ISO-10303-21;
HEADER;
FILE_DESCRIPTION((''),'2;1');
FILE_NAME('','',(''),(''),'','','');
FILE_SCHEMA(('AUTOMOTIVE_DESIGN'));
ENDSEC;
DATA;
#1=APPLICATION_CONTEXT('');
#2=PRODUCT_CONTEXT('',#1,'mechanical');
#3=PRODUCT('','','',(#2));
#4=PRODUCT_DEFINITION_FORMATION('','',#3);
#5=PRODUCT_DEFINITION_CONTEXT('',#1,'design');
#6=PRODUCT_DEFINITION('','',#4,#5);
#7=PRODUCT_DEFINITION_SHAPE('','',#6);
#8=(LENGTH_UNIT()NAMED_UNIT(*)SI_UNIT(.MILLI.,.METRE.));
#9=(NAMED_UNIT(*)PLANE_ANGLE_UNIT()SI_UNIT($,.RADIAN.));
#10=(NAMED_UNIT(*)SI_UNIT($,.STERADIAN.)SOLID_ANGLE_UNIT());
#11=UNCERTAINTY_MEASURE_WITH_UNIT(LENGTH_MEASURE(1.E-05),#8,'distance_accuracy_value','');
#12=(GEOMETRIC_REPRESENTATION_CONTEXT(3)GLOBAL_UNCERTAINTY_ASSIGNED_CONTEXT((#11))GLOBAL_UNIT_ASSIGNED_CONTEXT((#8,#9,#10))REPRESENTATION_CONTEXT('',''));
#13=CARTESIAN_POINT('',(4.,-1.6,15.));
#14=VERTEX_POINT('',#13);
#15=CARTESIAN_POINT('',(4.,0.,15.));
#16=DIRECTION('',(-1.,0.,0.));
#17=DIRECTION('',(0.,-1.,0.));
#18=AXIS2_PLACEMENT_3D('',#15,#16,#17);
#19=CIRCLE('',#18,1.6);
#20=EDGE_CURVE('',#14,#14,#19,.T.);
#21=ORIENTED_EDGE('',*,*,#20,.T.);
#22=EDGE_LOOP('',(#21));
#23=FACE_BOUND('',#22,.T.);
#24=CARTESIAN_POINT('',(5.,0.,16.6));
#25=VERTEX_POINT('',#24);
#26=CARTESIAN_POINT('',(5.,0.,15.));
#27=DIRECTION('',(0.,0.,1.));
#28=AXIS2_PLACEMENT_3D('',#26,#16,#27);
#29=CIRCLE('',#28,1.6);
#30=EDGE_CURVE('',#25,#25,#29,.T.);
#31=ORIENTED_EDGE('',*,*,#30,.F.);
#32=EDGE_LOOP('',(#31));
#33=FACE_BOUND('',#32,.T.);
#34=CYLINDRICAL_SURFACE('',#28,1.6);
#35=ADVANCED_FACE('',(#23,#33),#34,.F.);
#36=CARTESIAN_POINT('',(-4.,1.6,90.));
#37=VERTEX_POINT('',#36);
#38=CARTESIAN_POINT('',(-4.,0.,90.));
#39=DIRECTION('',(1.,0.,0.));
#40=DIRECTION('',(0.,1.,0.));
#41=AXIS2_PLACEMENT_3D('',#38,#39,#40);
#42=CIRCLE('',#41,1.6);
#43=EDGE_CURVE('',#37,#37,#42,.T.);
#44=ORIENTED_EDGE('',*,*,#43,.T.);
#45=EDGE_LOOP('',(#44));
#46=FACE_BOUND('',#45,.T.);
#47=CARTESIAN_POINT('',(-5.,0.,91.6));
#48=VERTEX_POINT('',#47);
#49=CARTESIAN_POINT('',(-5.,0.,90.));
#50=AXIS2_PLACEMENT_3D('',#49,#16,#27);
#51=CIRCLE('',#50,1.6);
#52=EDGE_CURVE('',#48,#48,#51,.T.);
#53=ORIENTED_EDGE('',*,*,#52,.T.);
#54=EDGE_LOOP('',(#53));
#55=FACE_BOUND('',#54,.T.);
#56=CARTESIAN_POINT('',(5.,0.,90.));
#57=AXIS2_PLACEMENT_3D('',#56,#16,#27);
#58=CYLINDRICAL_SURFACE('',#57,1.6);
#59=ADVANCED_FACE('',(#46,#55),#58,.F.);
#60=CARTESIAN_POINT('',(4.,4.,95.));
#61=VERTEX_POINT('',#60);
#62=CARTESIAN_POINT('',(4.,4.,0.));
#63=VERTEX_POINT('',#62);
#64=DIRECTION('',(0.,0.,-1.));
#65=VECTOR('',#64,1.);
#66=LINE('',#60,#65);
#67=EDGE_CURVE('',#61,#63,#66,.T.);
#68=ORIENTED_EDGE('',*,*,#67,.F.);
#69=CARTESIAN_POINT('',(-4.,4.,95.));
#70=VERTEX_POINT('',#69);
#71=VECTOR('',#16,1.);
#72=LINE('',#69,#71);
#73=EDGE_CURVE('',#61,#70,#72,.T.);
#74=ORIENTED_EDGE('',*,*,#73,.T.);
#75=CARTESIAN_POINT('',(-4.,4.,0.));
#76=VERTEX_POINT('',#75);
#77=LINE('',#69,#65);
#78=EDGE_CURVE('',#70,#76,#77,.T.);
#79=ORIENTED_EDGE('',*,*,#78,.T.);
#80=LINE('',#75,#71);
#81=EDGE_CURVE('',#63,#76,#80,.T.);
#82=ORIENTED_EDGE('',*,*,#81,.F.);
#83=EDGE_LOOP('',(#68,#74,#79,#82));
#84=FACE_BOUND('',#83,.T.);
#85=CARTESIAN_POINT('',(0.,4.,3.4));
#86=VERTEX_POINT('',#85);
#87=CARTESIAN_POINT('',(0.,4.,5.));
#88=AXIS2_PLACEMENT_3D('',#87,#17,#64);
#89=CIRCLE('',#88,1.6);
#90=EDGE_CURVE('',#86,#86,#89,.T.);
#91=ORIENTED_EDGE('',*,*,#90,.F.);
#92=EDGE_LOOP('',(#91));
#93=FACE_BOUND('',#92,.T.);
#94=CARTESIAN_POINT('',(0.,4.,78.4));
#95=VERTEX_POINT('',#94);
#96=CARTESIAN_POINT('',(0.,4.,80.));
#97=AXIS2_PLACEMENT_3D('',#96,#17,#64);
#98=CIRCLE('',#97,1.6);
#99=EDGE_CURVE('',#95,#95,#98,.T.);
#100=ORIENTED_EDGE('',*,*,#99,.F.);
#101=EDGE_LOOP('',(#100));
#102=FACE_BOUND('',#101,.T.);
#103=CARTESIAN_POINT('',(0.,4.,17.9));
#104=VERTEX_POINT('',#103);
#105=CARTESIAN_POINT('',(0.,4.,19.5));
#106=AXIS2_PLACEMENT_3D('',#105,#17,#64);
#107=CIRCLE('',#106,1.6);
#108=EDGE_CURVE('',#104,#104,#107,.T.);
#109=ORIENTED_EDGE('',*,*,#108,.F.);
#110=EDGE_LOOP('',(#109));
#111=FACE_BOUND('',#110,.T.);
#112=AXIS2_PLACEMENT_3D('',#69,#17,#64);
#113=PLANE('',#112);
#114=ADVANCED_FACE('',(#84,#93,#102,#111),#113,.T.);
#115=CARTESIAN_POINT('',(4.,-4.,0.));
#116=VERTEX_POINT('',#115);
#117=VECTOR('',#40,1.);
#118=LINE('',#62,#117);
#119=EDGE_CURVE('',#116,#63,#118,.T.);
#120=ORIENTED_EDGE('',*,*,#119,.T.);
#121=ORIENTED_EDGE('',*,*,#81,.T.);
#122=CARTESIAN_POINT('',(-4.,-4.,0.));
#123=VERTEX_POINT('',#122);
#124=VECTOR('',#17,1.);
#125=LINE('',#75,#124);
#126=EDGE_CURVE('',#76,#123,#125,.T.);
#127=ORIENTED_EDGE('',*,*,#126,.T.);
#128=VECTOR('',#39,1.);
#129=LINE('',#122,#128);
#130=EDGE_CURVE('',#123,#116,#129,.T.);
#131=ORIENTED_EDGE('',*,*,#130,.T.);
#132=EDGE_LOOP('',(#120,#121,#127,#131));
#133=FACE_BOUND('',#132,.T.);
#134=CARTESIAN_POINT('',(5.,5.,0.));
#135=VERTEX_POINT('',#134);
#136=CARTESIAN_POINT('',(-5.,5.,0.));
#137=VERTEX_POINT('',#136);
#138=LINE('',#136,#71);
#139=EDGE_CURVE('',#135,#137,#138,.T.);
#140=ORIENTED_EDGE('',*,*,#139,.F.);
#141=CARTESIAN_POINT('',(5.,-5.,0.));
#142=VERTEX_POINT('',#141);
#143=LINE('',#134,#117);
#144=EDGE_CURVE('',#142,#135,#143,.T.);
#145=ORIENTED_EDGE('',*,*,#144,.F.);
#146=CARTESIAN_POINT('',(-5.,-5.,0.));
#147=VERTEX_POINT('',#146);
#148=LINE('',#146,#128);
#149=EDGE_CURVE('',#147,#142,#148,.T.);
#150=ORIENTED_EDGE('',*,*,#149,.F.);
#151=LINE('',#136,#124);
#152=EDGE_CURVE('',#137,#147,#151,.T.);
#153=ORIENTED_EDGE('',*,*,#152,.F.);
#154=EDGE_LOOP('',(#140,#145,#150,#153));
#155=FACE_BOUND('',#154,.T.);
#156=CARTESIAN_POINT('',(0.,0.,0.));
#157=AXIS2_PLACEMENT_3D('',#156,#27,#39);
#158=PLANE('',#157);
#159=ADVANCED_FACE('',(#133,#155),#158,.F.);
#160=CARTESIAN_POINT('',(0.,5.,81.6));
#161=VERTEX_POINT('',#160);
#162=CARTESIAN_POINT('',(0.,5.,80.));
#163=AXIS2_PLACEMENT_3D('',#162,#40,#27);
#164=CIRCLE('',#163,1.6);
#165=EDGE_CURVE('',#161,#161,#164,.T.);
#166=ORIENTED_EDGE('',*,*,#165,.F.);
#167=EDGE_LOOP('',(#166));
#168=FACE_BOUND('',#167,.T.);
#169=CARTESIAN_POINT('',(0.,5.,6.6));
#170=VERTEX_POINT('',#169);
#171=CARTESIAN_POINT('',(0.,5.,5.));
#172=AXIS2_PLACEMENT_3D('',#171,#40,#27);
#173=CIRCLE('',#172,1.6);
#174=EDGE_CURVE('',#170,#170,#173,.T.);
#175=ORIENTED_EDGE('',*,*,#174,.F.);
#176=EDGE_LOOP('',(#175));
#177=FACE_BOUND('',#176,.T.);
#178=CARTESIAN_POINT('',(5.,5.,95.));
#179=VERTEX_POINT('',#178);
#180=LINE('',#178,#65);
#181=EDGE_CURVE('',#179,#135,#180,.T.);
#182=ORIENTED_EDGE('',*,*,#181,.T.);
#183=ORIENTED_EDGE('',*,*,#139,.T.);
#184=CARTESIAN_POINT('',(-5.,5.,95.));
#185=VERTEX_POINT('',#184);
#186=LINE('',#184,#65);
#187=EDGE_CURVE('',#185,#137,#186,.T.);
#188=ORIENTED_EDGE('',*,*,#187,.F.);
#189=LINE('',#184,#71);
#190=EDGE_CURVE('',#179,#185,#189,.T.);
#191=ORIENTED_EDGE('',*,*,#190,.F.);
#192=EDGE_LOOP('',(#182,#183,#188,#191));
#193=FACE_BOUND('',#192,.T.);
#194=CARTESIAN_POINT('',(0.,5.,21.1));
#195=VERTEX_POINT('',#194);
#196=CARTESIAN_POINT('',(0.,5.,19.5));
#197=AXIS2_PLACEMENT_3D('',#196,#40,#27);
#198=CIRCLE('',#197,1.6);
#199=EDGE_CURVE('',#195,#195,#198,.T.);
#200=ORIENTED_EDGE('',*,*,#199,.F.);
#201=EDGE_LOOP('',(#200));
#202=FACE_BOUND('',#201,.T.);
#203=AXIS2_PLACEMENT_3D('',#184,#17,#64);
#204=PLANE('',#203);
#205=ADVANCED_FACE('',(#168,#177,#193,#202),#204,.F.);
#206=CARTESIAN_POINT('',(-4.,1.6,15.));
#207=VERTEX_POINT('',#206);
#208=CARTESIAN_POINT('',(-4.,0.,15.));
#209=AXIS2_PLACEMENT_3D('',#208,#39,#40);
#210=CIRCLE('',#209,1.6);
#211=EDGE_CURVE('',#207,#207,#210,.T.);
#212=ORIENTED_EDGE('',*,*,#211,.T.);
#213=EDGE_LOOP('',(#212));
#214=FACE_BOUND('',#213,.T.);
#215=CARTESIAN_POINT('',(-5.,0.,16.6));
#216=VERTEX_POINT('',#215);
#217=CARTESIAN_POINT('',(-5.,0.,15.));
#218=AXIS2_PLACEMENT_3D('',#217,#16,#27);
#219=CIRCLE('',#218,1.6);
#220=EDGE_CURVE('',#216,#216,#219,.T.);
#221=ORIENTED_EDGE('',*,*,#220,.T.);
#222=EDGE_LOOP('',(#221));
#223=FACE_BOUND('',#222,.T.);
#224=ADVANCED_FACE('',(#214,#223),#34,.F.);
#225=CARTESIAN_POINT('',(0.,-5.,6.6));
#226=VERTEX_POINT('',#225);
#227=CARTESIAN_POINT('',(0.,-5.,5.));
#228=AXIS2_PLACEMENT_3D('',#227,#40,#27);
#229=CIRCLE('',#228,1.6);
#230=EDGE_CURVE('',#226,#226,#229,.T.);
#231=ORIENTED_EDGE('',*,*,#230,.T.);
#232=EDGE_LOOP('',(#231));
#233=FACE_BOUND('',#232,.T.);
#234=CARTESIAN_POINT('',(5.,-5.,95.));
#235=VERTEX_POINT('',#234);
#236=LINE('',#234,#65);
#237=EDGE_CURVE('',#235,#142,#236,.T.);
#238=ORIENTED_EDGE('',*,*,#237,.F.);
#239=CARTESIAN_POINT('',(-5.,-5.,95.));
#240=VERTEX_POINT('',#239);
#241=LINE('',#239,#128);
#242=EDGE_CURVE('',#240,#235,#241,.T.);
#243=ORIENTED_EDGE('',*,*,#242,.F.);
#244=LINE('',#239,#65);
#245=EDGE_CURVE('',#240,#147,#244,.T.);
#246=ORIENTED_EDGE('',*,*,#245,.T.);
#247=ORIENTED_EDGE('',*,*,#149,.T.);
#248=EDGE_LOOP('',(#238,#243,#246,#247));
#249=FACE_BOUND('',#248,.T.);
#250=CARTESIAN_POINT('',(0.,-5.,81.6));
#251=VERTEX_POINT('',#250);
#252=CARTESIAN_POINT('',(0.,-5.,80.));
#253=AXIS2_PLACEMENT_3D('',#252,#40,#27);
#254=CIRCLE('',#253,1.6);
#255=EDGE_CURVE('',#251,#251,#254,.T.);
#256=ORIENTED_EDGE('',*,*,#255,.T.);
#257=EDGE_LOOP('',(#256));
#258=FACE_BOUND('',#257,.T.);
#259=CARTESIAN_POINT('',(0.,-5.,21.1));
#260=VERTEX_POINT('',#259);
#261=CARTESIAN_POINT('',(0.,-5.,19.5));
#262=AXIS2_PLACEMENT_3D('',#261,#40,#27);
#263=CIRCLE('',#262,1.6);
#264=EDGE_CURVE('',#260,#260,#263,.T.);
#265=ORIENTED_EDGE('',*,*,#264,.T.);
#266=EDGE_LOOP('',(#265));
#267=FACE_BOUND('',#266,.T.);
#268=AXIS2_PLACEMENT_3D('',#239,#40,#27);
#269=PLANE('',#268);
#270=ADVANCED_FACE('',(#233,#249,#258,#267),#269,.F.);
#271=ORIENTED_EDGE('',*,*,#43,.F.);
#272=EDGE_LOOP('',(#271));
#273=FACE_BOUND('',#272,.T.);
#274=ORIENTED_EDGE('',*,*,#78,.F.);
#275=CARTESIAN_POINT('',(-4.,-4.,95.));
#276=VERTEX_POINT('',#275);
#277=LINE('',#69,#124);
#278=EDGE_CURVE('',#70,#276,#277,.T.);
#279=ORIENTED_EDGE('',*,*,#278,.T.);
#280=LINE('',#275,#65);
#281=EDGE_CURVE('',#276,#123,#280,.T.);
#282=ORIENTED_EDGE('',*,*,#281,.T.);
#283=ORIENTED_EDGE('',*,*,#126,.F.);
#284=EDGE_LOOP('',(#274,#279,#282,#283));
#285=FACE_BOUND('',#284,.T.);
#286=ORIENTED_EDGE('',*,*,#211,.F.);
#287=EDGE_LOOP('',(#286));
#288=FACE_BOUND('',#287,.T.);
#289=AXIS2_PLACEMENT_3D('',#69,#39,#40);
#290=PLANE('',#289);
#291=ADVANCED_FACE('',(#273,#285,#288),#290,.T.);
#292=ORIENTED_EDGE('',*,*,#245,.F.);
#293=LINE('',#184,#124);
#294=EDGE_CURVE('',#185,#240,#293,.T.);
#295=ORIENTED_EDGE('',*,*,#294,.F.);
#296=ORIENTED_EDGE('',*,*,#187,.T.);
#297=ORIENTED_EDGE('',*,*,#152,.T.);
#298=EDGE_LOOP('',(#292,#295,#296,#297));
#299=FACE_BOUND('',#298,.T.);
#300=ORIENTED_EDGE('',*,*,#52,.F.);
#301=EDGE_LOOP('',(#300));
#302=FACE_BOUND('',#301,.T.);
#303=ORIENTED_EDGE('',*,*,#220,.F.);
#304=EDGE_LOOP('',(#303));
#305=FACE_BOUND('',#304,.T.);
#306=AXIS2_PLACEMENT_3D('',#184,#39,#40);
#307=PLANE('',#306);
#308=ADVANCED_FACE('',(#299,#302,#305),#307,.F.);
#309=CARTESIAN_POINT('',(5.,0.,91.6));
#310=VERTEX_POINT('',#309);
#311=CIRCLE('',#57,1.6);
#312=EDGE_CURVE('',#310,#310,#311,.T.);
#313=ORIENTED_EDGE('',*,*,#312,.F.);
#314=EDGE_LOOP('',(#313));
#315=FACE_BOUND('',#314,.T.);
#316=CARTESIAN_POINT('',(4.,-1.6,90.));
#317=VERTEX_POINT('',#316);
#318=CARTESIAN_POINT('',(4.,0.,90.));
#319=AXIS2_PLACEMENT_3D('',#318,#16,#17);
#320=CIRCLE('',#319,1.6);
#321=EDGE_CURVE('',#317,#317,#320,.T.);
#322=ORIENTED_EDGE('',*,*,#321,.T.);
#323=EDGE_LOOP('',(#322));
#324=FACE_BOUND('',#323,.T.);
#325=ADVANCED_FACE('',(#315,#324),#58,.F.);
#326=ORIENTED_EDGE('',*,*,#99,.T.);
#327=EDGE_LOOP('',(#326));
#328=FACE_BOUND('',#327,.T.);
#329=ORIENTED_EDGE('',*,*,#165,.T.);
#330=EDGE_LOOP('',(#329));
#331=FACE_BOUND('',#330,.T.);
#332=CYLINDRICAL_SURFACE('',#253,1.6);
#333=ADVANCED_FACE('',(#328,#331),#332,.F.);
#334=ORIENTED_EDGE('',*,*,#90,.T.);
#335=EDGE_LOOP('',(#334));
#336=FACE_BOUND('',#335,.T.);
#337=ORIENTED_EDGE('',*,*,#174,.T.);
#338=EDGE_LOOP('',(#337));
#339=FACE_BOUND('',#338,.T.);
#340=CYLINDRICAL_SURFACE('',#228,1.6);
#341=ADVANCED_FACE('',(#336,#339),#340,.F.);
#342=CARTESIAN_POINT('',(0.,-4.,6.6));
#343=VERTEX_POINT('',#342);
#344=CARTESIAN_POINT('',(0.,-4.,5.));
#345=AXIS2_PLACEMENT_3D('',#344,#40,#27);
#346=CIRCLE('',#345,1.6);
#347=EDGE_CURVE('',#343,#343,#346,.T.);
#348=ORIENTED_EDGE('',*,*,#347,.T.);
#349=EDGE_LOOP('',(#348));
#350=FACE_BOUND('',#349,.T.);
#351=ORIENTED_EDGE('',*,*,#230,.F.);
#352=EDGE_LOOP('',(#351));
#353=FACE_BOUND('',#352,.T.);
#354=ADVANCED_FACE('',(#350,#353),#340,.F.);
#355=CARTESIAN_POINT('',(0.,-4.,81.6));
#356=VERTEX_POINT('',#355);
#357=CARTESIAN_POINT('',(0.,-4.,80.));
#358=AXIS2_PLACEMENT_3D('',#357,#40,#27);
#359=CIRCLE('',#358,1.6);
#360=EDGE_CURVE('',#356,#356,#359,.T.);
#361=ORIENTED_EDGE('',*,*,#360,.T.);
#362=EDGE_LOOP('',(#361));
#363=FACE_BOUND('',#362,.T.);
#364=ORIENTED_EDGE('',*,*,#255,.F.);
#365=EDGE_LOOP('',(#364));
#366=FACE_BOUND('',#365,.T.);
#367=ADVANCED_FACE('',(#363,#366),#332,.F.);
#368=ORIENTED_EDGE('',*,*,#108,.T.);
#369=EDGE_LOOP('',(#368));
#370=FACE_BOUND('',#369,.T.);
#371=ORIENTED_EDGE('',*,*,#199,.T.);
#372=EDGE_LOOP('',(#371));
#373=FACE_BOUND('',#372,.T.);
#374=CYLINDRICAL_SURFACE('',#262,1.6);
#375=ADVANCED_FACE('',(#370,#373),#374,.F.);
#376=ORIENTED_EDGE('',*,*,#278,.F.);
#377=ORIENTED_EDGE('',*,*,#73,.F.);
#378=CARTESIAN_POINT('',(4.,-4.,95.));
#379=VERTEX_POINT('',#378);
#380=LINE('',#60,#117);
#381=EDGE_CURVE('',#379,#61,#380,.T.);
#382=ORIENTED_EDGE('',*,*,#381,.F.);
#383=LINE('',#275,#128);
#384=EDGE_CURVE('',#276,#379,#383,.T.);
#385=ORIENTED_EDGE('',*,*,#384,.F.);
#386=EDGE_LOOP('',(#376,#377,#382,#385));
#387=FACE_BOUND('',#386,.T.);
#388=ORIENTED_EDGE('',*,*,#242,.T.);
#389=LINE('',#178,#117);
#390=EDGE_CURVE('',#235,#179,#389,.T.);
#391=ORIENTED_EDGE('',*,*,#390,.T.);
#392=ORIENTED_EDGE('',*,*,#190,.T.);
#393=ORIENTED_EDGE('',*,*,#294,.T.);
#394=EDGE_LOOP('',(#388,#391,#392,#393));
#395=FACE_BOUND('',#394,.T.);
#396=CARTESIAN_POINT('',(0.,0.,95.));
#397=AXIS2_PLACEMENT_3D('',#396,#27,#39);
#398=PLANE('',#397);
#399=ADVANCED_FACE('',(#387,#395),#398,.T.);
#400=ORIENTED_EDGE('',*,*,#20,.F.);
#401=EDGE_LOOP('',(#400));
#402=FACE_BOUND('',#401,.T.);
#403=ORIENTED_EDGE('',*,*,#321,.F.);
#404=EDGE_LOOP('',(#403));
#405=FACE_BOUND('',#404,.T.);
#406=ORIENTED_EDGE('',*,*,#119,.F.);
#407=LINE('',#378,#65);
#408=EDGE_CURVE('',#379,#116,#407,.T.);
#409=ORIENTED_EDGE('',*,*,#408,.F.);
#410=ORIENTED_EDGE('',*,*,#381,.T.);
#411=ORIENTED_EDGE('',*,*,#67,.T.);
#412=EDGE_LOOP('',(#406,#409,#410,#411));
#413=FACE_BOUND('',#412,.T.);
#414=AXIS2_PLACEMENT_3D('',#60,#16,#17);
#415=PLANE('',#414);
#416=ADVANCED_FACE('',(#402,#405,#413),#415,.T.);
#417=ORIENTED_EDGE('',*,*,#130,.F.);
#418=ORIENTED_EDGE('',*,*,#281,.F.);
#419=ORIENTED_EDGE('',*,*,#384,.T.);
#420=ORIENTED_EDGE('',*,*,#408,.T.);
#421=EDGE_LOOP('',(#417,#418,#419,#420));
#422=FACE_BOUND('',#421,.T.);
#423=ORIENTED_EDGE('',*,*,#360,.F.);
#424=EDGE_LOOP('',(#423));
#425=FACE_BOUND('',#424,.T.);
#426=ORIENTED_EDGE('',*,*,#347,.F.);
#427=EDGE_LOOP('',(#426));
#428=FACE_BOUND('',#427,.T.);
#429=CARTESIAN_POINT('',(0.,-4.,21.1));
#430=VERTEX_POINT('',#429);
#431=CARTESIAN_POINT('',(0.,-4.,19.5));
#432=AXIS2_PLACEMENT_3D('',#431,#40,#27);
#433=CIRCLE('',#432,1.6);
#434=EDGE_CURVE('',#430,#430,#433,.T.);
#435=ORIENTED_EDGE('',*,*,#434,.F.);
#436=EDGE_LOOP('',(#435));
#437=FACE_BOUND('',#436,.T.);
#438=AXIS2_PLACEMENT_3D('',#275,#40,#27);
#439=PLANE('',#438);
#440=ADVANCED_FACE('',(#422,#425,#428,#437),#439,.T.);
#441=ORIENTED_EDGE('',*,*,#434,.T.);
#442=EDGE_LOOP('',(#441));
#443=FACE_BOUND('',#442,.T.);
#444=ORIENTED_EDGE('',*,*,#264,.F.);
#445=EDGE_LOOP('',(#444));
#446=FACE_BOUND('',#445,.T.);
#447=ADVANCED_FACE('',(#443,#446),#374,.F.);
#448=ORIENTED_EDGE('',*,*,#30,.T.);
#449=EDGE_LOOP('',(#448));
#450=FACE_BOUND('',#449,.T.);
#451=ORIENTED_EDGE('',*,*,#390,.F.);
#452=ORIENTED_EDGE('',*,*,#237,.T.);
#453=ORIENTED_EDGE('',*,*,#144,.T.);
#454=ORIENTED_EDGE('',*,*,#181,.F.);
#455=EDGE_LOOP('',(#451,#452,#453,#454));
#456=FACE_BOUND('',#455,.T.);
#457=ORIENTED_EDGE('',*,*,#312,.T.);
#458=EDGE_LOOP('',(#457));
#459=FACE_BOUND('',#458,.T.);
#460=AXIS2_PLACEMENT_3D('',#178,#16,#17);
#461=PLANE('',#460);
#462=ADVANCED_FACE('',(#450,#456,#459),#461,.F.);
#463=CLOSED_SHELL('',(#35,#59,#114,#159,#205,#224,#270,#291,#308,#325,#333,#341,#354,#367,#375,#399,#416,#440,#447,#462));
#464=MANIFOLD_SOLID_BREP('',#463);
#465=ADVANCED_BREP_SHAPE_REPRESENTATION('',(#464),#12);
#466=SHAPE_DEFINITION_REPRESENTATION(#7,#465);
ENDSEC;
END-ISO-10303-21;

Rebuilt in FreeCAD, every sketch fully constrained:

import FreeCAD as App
import Part
import Sketcher
from FreeCAD import Vector
Q = App.Units.Quantity


def add_polygon(sketch, points):
    """Adds a closed chain of lines whose ends are joined by coincident constraints."""
    first, n = sketch.GeometryCount, len(points)
    for a, b in zip(points, points[1:] + points[:1]):
        sketch.addGeometry(Part.LineSegment(App.Vector(*a, 0), App.Vector(*b, 0)), False)
    for i in range(n):
        sketch.addConstraint(Sketcher.Constraint("Coincident", first + i, 2, first + (i + 1) % n, 1))

doc = App.newDocument("Part")
body = doc.addObject("PartDesign::Body", "Body")

# Sketch on XY plane
sketch1 = body.newObject("Sketcher::SketchObject", "Sketch")
sketch1.AttachmentSupport = (doc.getObject("XY_Plane"), [""])
sketch1.MapMode = "FlatFace"
add_polygon(sketch1, [(-5, 5), (-5, -5), (5, -5), (5, 5)])  # lines 0-3
add_polygon(sketch1, [(4, -4), (-4, -4), (-4, 4), (4, 4)])  # lines 4-7
sketch1.addConstraint([
    Sketcher.Constraint("Vertical", 0),
    Sketcher.Constraint("Horizontal", 1),
    Sketcher.Constraint("Vertical", 2),
    Sketcher.Constraint("Horizontal", 3),
    Sketcher.Constraint("Horizontal", 4),
    Sketcher.Constraint("Vertical", 5),
    Sketcher.Constraint("Horizontal", 6),
    Sketcher.Constraint("Vertical", 7),
    Sketcher.Constraint("Symmetric", 0, 2, 2, 2, -1, 1),
    Sketcher.Constraint("Symmetric", 4, 2, 6, 2, -1, 1),
    Sketcher.Constraint("Equal", 3, 0),
    Sketcher.Constraint("Equal", 6, 5),
    Sketcher.Constraint("DistanceX", 1, 1, 1, 2, Q("10 mm")),
    Sketcher.Constraint("DistanceX", 4, 2, 4, 1, Q("8 mm")),
])
pad1 = body.newObject("PartDesign::Pad", "Pad")
pad1.Profile = sketch1
pad1.Length = 95

# Sketch on XZ plane
sketch2 = body.newObject("Sketcher::SketchObject", "Sketch001")
sketch2.AttachmentSupport = (doc.getObject("XZ_Plane"), [""])
sketch2.MapMode = "FlatFace"
sketch2.AttachmentOffset = App.Placement(Vector(0, 0, -5), App.Rotation())
sketch2.addGeometry([
    Part.Circle(Vector(0, 5, 0), Vector(0, 0, 1), 1.6),
    Part.Circle(Vector(0, 80, 0), Vector(0, 0, 1), 1.6),
    Part.Circle(Vector(0, 19.5, 0), Vector(0, 0, 1), 1.6),
], False)
sketch2.addConstraint([
    Sketcher.Constraint("Equal", 0, 1),
    Sketcher.Constraint("Equal", 1, 2),
    Sketcher.Constraint("PointOnObject", 0, 3, -2),
    Sketcher.Constraint("PointOnObject", 1, 3, -2),
    Sketcher.Constraint("PointOnObject", 2, 3, -2),
    Sketcher.Constraint("Diameter", 0, Q("3.2 mm")),
    Sketcher.Constraint("DistanceY", -1, 1, 0, 3, Q("5 mm")),
    Sketcher.Constraint("DistanceY", -1, 1, 1, 3, Q("80 mm")),
    Sketcher.Constraint("DistanceY", -1, 1, 2, 3, Q("19.5 mm")),
])
pocket1 = body.newObject("PartDesign::Pocket", "Pocket")
pocket1.Profile = sketch2
pocket1.Type = "ThroughAll"
pocket1.Reversed = True

# Sketch on YZ plane
sketch3 = body.newObject("Sketcher::SketchObject", "Sketch002")
sketch3.AttachmentSupport = (doc.getObject("YZ_Plane"), [""])
sketch3.MapMode = "FlatFace"
sketch3.AttachmentOffset = App.Placement(Vector(0, 0, -5), App.Rotation())
sketch3.addGeometry([
    Part.Circle(Vector(0, 15, 0), Vector(0, 0, 1), 1.6),
    Part.Circle(Vector(0, 90, 0), Vector(0, 0, 1), 1.6),
], False)
sketch3.addConstraint([
    Sketcher.Constraint("Equal", 0, 1),
    Sketcher.Constraint("PointOnObject", 0, 3, -2),
    Sketcher.Constraint("PointOnObject", 1, 3, -2),
    Sketcher.Constraint("Diameter", 0, Q("3.2 mm")),
    Sketcher.Constraint("DistanceY", -1, 1, 0, 3, Q("15 mm")),
    Sketcher.Constraint("DistanceY", -1, 1, 1, 3, Q("90 mm")),
])
pocket2 = body.newObject("PartDesign::Pocket", "Pocket001")
pocket2.Profile = sketch3
pocket2.Type = "ThroughAll"
pocket2.Reversed = True

doc.recompute()
